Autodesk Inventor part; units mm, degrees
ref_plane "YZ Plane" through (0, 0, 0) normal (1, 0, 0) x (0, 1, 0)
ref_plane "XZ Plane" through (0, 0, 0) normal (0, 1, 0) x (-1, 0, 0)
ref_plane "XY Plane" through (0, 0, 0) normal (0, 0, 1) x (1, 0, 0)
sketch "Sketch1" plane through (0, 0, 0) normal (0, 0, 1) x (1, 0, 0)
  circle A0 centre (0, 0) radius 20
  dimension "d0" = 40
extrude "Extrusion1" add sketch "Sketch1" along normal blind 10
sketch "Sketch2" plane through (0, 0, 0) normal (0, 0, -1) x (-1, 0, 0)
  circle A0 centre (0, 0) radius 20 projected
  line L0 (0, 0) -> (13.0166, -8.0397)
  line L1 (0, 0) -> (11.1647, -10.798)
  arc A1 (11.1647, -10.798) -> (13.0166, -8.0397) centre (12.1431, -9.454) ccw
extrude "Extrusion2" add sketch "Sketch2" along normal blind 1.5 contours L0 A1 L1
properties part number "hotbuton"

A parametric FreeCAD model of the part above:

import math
import FreeCAD as App
import Part
import Sketcher
from FreeCAD import Vector
Q = App.Units.Quantity

doc = App.newDocument("Part")
body = doc.addObject("PartDesign::Body", "Body")

sketch1 = body.newObject("Sketcher::SketchObject", "Sketch")
sketch1.AttachmentSupport = (doc.getObject("XY_Plane"), [""])
sketch1.MapMode = "FlatFace"
sketch1.addGeometry(Part.Circle(Vector(0, 0, 0), Vector(0, 0, 1), 20), False)
sketch1.addConstraint(Sketcher.Constraint("Coincident", 0, 3, -1, 1))
sketch1.addConstraint(Sketcher.Constraint("Diameter", 0, Q("40 mm")))
pad1 = body.newObject("PartDesign::Pad", "Pad")
pad1.Profile = sketch1
pad1.Length = 10

sketch2 = body.newObject("Sketcher::SketchObject", "Sketch001")
sketch2.AttachmentSupport = (doc.getObject("XY_Plane"), [""])
sketch2.MapMode = "FlatFace"
sketch2.addGeometry(Part.LineSegment(Vector(-13, -8, 0), Vector(0, 0, 0)), False)
sketch2.addGeometry(Part.LineSegment(Vector(0, 0, 0), Vector(-11.2, -10.8, 0)), False)
sketch2.addGeometry(Part.ArcOfCircle(Part.Circle(Vector(-12.1, -9.5, 0), Vector(0, 0, 1), 1.7), math.radians(122), math.radians(306)), False)
sketch2.addConstraint(Sketcher.Constraint("Coincident", 0, 2, 1, 1))
sketch2.addConstraint(Sketcher.Constraint("Coincident", 1, 2, 2, 2))
sketch2.addConstraint(Sketcher.Constraint("Tangent", 2, 1, 0, 1))
sketch2.addConstraint(Sketcher.Constraint("Coincident", 0, 2, -1, 1))
sketch2.addConstraint(Sketcher.Constraint("Radius", 2, Q("1.6624 mm")))
sketch2.addConstraint(Sketcher.Constraint("DistanceX", 2, 3, -1, 1, Q("12.143 mm")))
sketch2.addConstraint(Sketcher.Constraint("DistanceY", 2, 3, -1, 1, Q("9.454 mm")))
sketch2.addConstraint(Sketcher.Constraint("DistanceY", 1, 2, -1, 1, Q("10.798 mm")))
pad2 = body.newObject("PartDesign::Pad", "Pad001")
pad2.Profile = sketch2
pad2.Length = 1.5
pad2.Reversed = True

doc.recompute()
